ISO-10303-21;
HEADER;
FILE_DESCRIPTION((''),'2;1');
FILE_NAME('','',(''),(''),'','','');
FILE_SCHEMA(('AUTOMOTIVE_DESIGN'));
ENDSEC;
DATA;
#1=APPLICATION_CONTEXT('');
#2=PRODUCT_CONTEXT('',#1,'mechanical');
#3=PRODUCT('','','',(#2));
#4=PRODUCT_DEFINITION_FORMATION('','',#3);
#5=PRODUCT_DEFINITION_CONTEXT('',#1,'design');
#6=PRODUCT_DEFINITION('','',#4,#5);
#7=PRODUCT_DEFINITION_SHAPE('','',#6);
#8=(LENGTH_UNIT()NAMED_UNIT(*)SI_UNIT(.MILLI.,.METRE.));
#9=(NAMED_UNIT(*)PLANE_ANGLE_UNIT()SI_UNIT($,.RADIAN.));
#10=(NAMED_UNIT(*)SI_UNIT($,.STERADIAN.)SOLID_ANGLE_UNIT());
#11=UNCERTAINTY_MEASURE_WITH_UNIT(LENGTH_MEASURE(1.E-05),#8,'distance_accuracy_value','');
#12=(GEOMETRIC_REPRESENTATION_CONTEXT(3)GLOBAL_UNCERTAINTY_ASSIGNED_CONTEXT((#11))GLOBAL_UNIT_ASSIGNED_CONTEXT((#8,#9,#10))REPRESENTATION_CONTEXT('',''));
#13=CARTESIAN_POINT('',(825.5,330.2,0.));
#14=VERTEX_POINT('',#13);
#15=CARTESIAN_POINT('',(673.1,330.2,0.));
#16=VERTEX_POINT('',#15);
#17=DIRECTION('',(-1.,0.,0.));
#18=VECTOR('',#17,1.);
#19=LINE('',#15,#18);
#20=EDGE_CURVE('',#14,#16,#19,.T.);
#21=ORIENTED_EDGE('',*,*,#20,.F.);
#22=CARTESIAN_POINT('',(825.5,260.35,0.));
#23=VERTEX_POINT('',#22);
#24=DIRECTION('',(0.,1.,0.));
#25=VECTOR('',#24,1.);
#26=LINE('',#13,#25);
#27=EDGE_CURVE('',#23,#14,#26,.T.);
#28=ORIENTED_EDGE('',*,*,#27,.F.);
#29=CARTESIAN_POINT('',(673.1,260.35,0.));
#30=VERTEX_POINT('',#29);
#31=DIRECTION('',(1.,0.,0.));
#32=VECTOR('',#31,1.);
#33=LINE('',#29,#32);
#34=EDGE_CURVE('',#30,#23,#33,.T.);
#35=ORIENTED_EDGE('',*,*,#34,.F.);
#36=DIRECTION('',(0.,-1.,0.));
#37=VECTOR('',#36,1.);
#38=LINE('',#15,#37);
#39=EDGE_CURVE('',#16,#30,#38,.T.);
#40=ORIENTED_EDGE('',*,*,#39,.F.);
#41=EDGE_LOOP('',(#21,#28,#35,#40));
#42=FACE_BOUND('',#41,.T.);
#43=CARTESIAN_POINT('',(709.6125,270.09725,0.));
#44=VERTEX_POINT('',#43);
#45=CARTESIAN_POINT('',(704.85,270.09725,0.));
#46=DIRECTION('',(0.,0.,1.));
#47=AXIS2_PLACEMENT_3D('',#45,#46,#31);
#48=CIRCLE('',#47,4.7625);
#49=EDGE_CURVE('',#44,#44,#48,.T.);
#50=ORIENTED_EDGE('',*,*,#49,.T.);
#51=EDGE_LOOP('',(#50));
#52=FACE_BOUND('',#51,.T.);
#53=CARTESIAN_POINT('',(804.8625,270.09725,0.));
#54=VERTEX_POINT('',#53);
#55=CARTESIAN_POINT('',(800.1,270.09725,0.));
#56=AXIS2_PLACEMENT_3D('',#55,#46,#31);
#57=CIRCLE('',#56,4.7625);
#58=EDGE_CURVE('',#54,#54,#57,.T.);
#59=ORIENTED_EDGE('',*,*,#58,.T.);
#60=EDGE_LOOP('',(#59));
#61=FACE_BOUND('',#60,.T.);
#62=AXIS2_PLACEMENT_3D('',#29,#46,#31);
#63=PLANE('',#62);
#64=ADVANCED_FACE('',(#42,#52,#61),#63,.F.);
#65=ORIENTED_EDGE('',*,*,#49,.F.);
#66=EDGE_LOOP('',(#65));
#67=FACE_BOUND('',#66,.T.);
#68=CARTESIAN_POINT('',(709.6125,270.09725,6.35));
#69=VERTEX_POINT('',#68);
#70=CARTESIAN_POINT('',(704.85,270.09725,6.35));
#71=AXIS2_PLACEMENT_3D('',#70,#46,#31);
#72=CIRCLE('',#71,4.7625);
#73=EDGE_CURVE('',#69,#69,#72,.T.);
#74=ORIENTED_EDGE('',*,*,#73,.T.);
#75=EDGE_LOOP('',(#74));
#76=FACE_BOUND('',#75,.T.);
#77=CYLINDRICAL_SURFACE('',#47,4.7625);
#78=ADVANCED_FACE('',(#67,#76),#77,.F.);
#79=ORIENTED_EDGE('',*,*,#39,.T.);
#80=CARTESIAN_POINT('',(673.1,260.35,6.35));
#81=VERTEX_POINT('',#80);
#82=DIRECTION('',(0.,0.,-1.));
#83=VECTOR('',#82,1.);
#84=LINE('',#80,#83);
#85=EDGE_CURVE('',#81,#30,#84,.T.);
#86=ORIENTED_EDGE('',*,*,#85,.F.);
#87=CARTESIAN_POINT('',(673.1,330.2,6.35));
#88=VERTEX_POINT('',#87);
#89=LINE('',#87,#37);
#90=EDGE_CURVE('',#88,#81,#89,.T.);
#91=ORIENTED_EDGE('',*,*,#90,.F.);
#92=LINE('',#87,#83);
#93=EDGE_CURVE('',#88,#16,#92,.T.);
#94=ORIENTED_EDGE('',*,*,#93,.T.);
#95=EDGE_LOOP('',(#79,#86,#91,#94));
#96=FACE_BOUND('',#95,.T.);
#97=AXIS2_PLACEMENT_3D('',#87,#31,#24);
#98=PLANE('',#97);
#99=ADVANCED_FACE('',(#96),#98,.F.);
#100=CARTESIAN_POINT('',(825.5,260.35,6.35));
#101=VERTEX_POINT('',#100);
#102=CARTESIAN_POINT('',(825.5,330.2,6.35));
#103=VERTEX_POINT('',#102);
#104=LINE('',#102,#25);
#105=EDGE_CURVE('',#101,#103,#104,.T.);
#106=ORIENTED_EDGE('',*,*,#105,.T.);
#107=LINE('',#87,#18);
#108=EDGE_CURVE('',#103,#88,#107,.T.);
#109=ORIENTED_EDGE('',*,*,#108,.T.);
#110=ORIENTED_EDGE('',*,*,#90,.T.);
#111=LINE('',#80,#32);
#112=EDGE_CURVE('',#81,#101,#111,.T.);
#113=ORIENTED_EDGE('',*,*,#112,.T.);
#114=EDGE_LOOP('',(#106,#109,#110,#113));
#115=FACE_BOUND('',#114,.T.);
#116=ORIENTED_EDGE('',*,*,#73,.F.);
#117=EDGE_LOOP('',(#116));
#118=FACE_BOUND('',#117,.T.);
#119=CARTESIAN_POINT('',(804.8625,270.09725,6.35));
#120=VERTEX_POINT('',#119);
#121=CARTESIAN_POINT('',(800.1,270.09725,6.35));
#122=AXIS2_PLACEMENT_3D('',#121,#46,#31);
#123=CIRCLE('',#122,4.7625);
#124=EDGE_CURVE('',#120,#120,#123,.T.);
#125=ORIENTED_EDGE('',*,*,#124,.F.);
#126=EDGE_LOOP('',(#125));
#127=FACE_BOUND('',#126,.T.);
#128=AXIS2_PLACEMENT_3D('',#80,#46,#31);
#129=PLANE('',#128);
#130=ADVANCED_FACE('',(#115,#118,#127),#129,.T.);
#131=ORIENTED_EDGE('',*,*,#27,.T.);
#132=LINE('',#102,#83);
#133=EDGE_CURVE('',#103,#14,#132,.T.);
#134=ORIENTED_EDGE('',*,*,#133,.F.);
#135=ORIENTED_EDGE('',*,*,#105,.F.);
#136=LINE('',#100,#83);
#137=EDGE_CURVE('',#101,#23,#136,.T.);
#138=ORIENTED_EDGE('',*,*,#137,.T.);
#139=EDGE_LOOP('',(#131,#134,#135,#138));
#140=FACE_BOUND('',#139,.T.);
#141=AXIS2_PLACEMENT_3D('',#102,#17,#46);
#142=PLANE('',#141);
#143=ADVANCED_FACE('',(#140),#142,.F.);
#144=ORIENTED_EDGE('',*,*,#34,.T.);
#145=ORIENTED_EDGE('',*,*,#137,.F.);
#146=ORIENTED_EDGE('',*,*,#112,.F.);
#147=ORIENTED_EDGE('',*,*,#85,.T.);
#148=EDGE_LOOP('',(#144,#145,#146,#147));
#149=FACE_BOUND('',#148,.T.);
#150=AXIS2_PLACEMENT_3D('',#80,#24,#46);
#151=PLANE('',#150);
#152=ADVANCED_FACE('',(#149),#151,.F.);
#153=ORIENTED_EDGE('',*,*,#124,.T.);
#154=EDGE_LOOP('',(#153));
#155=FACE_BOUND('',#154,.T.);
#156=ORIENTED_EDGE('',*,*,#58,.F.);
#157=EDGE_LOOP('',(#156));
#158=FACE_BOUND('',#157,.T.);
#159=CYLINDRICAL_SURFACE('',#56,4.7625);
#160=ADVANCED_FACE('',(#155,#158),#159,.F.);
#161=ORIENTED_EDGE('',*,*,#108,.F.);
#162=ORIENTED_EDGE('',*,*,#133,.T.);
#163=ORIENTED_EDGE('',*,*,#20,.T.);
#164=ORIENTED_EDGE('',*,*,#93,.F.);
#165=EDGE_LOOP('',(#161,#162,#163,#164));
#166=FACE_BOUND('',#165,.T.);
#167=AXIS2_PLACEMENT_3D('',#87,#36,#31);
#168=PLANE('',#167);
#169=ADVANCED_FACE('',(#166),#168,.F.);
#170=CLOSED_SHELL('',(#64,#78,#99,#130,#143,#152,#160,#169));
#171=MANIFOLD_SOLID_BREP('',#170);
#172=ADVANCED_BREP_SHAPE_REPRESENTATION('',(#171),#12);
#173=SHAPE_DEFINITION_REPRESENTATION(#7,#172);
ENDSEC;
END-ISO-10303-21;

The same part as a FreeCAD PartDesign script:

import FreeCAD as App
import Part
import Sketcher
from FreeCAD import Vector
Q = App.Units.Quantity


def add_polygon(sketch, points):
    """Adds a closed chain of lines whose ends are joined by coincident constraints."""
    first, n = sketch.GeometryCount, len(points)
    for a, b in zip(points, points[1:] + points[:1]):
        sketch.addGeometry(Part.LineSegment(App.Vector(*a, 0), App.Vector(*b, 0)), False)
    for i in range(n):
        sketch.addConstraint(Sketcher.Constraint("Coincident", first + i, 2, first + (i + 1) % n, 1))

doc = App.newDocument("Part")
body = doc.addObject("PartDesign::Body", "Body")

sketch1 = body.newObject("Sketcher::SketchObject", "Sketch")
sketch1.AttachmentSupport = (doc.getObject("XY_Plane"), [""])
sketch1.MapMode = "FlatFace"
add_polygon(sketch1, [(673.1, 330.2), (673.1, 260.35), (825.5, 260.35), (825.5, 330.2)])
sketch1.addConstraint([
    Sketcher.Constraint("Vertical", 0),
    Sketcher.Constraint("Horizontal", 1),
    Sketcher.Constraint("Vertical", 2),
    Sketcher.Constraint("Horizontal", 3),
    Sketcher.Constraint("DistanceX", 1, 1, 1, 2, Q("6 in")),
    Sketcher.Constraint("DistanceY", -1, 1, 2, 2, Q("13 in")),
    Sketcher.Constraint("DistanceY", 0, 2, 0, 1, Q("2.75 in")),
    Sketcher.Constraint("DistanceX", -1, 1, 0, 2, Q("26.5 in")),
])
pad1 = body.newObject("PartDesign::Pad", "Pad")
pad1.Profile = sketch1
pad1.Length = Q("0.25 in")

sketch2 = body.newObject("Sketcher::SketchObject", "Sketch001")
sketch2.AttachmentSupport = (doc.getObject("XY_Plane"), [""])
sketch2.MapMode = "FlatFace"
sketch2.AttachmentOffset = App.Placement(Vector(0, 0, 0.25 * 25.4), App.Rotation())
sketch2.addGeometry([
    Part.Circle(Vector(800.1, 270.09725, 0), Vector(0, 0, 1), 4.7625),
    Part.Circle(Vector(704.85, 270.09725, 0), Vector(0, 0, 1), 4.7625),
], False)
sketch2.addConstraint([
    Sketcher.Constraint("Equal", 0, 1),
    Sketcher.Constraint("Horizontal", 0, 3, 1, 3),
    Sketcher.Constraint("Diameter", 0, Q("0.375 in")),
    Sketcher.Constraint("DistanceX", -1, 1, 0, 3, Q("31.5 in")),
    Sketcher.Constraint("DistanceX", -1, 1, 1, 3, Q("27.75 in")),
    Sketcher.Constraint("DistanceY", -1, 1, 0, 3, Q("270.09725 mm")),
])
pocket1 = body.newObject("PartDesign::Pocket", "Pocket")
pocket1.Profile = sketch2
pocket1.Type = "ThroughAll"

doc.recompute()
